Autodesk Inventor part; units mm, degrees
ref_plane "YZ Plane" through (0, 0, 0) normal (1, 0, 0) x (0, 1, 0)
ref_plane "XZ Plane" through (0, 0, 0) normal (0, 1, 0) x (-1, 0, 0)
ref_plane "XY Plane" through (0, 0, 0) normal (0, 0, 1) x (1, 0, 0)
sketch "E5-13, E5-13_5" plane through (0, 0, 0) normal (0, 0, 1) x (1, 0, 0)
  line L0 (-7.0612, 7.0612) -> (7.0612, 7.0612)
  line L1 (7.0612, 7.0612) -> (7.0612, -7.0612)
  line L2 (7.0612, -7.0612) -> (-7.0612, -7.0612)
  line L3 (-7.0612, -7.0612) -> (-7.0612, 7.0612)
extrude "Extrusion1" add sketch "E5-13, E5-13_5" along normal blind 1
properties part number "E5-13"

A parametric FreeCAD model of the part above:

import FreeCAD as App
import Part
import Sketcher


def add_polygon(sketch, points):
    """Adds a closed chain of lines whose ends are joined by coincident constraints."""
    first, n = sketch.GeometryCount, len(points)
    for a, b in zip(points, points[1:] + points[:1]):
        sketch.addGeometry(Part.LineSegment(App.Vector(*a, 0), App.Vector(*b, 0)), False)
    for i in range(n):
        sketch.addConstraint(Sketcher.Constraint("Coincident", first + i, 2, first + (i + 1) % n, 1))

doc = App.newDocument("Part")
body = doc.addObject("PartDesign::Body", "Body")

# Sketch on XY plane
sketch1 = body.newObject("Sketcher::SketchObject", "Sketch")
sketch1.AttachmentSupport = (doc.getObject("XY_Plane"), [""])
sketch1.MapMode = "FlatFace"
add_polygon(sketch1, [(7, 7), (-7, 7), (-7, -7), (7, -7)])  # lines 0-3
sketch1.addConstraint([
    Sketcher.Constraint("Horizontal", 0),
    Sketcher.Constraint("Vertical", 1),
    Sketcher.Constraint("Horizontal", 2),
    Sketcher.Constraint("Vertical", 3),
    Sketcher.Constraint("Symmetric", 0, 2, 2, 2, -1, 1),
    Sketcher.Constraint("Equal", 2, 1),
    Sketcher.Constraint("DistanceX", 0, 2, 0, 1, 14.1224),
])
pad1 = body.newObject("PartDesign::Pad", "Pad")
pad1.Profile = sketch1
pad1.Length = 1

doc.recompute()
